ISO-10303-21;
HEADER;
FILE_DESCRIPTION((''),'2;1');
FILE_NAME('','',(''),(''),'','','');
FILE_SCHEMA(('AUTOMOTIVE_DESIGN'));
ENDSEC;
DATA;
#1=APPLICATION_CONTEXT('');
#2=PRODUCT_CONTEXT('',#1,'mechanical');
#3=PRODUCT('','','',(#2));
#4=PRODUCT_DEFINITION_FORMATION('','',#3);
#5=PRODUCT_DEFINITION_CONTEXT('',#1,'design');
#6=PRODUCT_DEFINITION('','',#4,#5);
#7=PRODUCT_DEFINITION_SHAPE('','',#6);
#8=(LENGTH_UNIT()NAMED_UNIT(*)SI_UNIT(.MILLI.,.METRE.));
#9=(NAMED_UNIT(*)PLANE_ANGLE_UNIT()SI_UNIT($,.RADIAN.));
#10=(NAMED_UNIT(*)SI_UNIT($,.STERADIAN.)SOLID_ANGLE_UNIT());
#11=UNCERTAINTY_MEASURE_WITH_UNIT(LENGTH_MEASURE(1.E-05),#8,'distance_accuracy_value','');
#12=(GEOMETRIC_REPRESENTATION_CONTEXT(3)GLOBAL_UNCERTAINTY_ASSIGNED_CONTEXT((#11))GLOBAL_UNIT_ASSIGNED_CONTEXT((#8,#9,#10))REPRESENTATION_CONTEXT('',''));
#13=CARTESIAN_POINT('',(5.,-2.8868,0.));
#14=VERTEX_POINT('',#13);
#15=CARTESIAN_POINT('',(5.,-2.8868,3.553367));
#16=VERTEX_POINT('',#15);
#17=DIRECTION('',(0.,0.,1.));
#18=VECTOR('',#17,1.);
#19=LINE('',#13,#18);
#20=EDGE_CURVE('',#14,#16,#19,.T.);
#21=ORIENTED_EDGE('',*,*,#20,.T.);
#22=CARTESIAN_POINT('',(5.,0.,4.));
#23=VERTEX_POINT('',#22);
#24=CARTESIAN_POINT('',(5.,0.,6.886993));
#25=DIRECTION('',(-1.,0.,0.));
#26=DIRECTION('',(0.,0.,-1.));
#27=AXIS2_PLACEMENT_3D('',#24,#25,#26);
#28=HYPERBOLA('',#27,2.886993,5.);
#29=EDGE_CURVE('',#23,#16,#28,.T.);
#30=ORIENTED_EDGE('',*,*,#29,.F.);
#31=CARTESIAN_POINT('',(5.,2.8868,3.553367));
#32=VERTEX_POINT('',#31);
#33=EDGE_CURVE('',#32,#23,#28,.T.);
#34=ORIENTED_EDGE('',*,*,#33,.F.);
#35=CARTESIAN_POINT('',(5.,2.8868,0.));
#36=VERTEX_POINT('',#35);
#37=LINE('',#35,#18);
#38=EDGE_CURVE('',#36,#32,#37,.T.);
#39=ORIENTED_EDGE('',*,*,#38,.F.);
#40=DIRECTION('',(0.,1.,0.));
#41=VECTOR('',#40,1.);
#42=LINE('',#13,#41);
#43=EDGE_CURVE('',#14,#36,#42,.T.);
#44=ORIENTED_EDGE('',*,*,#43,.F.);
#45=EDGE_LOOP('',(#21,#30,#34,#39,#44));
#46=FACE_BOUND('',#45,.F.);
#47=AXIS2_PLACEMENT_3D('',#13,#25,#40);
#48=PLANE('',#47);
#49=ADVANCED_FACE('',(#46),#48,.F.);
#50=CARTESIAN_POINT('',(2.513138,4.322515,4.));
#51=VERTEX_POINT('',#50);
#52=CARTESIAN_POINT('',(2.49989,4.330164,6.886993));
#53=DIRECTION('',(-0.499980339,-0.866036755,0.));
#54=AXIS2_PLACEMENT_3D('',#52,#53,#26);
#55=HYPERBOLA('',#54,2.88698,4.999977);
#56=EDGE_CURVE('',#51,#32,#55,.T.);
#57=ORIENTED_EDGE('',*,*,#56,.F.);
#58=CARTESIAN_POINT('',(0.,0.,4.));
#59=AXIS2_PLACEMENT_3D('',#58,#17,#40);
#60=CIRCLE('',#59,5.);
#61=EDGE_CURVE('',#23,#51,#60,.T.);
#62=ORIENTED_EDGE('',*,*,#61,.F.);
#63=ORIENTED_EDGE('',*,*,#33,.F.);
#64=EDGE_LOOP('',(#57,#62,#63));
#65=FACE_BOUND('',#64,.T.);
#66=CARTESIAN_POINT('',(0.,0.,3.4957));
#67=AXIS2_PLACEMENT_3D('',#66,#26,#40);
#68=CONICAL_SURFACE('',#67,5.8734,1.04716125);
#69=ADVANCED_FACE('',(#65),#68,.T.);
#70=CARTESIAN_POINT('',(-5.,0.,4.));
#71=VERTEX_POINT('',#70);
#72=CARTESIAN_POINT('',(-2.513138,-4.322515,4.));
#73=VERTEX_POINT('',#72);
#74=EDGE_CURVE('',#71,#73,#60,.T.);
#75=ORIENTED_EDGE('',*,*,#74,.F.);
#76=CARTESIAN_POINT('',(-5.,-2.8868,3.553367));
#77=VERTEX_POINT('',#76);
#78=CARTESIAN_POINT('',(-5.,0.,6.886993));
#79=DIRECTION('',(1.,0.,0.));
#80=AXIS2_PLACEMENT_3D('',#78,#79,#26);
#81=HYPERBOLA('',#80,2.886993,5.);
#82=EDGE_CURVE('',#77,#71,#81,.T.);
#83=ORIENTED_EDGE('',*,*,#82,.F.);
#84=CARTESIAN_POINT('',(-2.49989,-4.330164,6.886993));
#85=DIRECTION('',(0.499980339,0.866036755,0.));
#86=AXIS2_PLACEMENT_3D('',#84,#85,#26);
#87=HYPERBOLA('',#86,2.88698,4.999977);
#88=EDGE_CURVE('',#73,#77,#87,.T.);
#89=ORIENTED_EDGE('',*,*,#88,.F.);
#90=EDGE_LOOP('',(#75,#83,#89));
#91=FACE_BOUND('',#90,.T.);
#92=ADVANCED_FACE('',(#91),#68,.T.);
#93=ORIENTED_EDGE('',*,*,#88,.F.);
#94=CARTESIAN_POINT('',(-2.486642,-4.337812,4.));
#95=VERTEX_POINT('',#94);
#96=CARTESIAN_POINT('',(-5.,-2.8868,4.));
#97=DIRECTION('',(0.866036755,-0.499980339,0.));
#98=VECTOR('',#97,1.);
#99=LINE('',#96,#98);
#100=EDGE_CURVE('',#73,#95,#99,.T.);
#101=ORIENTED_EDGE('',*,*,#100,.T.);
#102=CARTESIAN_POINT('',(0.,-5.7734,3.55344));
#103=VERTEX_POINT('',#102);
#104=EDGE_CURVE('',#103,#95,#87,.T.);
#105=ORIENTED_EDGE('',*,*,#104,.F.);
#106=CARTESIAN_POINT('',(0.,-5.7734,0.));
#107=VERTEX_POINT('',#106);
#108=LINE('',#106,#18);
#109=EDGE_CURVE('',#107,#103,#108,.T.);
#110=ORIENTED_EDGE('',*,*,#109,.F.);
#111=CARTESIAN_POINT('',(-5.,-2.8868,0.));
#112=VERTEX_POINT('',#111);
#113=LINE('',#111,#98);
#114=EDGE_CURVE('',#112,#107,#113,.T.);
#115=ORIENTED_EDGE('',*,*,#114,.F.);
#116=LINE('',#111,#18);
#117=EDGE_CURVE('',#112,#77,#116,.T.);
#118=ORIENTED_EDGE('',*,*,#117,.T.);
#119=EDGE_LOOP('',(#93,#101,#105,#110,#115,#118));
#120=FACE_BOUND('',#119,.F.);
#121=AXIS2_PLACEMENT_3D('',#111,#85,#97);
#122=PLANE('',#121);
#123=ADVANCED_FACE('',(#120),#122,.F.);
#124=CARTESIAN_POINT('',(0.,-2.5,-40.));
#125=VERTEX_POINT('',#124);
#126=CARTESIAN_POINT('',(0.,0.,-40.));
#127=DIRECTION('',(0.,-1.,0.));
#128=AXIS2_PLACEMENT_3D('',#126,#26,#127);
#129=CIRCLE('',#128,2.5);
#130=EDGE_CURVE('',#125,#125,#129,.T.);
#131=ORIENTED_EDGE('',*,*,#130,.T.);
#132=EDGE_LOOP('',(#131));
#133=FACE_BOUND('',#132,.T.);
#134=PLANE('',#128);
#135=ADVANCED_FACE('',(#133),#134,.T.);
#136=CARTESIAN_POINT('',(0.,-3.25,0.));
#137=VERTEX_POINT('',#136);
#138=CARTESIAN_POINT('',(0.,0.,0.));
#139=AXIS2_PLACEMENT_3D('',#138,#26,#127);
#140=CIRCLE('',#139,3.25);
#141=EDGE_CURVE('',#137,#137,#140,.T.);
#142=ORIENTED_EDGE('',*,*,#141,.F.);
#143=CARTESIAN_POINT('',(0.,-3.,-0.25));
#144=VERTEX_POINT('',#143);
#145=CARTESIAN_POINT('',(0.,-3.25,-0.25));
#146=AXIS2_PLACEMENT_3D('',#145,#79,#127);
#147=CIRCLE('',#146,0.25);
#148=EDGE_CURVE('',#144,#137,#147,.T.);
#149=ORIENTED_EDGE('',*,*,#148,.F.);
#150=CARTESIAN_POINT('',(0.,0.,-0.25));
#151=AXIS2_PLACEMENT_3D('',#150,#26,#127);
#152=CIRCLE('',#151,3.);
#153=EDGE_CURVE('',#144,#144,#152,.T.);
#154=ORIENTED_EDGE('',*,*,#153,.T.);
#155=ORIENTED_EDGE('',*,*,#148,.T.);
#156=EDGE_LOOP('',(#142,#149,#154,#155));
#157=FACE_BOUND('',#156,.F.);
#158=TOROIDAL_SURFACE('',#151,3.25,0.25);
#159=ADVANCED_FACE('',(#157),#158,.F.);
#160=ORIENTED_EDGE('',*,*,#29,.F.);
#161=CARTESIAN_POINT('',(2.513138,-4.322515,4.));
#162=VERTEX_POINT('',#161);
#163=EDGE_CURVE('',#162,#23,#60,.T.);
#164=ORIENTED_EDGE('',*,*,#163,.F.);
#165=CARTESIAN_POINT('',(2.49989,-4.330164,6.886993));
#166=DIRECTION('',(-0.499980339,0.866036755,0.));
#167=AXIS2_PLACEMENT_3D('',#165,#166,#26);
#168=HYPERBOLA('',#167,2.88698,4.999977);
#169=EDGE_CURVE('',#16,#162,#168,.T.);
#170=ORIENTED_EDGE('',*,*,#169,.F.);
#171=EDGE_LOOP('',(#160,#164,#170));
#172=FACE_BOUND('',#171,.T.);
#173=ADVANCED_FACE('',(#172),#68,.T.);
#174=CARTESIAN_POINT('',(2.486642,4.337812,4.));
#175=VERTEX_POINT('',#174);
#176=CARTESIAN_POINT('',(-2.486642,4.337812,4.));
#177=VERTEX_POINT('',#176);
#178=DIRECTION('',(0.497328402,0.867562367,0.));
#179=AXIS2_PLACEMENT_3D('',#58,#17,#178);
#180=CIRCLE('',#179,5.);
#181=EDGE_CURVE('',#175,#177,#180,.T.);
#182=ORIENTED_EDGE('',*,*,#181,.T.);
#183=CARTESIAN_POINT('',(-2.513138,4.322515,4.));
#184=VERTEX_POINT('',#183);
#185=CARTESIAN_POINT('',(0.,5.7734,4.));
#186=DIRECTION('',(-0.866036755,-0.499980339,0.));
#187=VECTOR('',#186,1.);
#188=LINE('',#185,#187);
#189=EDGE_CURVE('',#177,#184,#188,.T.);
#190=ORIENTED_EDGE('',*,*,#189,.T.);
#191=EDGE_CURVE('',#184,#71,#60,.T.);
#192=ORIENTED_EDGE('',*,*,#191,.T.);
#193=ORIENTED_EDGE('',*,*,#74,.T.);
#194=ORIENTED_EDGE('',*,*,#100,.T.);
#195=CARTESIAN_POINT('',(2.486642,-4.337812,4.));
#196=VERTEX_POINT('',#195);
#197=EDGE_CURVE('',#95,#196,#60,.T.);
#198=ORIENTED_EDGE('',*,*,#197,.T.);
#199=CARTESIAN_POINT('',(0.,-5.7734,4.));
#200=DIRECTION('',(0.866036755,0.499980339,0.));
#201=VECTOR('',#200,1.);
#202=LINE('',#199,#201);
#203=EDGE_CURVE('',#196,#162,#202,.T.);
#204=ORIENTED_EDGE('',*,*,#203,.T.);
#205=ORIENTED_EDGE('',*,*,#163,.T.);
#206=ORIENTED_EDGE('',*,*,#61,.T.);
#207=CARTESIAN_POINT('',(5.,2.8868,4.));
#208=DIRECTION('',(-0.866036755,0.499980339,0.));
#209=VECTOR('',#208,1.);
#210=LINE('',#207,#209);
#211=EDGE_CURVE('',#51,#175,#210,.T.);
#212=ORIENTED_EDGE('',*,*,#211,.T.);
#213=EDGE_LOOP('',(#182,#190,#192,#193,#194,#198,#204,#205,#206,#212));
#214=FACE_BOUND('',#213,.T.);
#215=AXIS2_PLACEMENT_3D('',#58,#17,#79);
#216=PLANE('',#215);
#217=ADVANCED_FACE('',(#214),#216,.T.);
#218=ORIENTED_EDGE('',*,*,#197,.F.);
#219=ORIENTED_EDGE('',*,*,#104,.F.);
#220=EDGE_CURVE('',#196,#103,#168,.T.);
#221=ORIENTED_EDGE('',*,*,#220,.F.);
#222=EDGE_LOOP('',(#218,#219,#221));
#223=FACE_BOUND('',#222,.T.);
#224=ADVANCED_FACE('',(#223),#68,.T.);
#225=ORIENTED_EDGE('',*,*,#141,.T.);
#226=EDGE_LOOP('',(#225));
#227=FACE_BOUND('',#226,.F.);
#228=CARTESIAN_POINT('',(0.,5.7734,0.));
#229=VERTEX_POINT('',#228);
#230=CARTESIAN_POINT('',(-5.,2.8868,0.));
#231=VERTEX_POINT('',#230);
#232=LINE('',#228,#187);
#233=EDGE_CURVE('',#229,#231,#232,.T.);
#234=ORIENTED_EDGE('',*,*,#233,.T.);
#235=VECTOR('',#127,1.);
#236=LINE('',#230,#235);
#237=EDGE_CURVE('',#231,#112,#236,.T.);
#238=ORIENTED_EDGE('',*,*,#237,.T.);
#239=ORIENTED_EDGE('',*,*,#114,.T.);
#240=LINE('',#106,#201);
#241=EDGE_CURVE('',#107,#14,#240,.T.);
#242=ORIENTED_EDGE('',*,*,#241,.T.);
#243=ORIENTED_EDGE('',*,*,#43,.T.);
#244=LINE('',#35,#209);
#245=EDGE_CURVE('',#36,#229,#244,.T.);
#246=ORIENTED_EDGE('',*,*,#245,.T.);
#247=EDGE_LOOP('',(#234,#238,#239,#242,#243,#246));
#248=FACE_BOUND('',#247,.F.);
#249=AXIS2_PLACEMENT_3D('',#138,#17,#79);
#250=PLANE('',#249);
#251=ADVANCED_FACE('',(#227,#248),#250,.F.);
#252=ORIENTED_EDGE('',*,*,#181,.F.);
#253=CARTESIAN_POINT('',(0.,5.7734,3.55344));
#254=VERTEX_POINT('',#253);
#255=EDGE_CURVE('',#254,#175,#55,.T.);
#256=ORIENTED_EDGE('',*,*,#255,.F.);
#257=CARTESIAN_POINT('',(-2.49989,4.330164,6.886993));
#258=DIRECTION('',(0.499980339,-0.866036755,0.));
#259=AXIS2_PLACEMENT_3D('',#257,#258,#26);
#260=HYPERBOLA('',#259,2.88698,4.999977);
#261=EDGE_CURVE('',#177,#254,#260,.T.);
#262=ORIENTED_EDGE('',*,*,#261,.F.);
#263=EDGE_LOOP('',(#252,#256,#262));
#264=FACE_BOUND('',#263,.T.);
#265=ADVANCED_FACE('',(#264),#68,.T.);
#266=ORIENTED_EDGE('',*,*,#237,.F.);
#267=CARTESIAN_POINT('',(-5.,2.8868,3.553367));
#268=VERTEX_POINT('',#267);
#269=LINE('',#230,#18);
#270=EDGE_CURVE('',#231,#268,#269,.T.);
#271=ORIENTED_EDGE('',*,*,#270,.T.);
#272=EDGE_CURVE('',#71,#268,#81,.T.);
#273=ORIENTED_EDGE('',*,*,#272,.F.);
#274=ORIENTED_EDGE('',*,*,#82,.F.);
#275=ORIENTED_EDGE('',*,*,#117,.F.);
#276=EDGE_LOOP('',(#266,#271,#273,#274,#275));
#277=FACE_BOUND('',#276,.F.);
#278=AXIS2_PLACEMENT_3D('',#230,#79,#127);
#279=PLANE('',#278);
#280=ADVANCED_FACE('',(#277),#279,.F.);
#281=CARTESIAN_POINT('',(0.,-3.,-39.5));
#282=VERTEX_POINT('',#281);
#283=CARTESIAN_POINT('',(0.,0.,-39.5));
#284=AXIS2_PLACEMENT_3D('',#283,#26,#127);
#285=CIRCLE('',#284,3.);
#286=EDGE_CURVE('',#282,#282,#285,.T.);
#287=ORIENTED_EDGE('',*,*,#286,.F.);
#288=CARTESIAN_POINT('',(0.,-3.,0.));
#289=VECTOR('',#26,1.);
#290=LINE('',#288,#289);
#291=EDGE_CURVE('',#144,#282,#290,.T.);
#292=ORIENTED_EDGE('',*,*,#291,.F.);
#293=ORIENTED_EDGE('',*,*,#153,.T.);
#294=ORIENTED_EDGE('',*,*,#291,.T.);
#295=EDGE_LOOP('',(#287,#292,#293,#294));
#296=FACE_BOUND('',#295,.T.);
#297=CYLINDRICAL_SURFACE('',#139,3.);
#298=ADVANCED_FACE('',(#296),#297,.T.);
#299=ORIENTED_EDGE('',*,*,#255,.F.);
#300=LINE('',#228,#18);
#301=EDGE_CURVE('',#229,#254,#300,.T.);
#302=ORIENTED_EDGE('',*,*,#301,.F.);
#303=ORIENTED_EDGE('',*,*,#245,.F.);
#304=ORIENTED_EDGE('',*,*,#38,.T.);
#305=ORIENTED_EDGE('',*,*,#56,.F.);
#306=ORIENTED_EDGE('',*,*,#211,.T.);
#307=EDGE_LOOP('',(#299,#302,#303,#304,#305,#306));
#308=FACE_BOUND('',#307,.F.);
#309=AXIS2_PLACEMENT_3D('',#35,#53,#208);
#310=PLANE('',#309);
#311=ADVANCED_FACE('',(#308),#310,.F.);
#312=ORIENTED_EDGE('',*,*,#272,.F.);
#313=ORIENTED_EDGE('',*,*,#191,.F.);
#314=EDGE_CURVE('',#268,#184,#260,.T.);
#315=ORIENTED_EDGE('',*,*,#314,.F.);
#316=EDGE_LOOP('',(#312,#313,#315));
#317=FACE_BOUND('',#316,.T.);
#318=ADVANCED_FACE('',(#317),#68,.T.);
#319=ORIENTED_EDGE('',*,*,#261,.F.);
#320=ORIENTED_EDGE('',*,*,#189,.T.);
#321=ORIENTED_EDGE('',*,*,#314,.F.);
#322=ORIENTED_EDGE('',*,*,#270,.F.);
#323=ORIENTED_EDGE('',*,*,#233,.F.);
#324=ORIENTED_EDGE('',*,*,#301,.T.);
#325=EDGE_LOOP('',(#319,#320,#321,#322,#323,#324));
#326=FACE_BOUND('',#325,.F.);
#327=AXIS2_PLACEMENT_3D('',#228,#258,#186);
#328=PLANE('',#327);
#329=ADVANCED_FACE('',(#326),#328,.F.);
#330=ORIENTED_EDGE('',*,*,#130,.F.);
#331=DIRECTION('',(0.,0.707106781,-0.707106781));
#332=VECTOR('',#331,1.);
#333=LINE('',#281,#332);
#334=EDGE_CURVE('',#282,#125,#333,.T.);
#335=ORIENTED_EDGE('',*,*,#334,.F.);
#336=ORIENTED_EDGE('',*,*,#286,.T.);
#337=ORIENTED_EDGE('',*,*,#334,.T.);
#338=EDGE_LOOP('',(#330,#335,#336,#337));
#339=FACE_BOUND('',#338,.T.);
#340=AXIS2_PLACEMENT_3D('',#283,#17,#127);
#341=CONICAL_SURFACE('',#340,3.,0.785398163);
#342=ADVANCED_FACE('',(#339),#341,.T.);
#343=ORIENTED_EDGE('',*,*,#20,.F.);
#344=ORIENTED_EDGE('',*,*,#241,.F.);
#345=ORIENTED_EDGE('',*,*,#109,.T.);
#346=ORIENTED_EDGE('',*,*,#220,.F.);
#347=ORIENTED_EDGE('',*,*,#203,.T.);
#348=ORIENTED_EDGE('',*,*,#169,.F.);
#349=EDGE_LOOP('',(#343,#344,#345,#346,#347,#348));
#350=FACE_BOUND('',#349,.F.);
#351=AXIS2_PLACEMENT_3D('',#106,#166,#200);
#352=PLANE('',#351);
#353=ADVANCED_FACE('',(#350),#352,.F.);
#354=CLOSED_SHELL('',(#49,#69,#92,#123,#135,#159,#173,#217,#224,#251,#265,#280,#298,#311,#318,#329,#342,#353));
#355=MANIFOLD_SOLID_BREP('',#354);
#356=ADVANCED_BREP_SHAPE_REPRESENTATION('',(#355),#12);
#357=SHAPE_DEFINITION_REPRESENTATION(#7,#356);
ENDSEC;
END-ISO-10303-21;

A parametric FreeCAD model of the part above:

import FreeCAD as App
import Part
import Sketcher

V = App.Vector


def edges_at(feature, points):
    """Names of the edges that pass closest to the given points."""
    edges = feature.Shape.Edges
    near = lambda p: min(range(len(edges)), key=lambda i: edges[i].distToShape(Part.Vertex(*p))[0])
    return sorted({f"Edge{near(p) + 1}" for p in points})

doc = App.newDocument("Part")
body = doc.addObject("PartDesign::Body", "Body")

# Sketch on XY plane
sketch1 = body.newObject("Sketcher::SketchObject", "Sketch")
sketch1.AttachmentSupport = (doc.getObject("XY_Plane"), [""])
sketch1.MapMode = "FlatFace"
sketch1.addGeometry([
    Part.LineSegment(V(0, 6, 0), V(-5, 3, 0)),  # 0
    Part.LineSegment(V(-5, 3, 0), V(-5, -3, 0)),  # 1
    Part.LineSegment(V(-5, -3, 0), V(0, -6, 0)),  # 2
    Part.LineSegment(V(0, -6, 0), V(5, -3, 0)),  # 3
    Part.LineSegment(V(5, -3, 0), V(5, 3, 0)),  # 4
    Part.LineSegment(V(5, 3, 0), V(0, 6, 0)),  # 5
], False)
sketch1.addConstraint([
    Sketcher.Constraint("Coincident", 0, 2, 1, 1),
    Sketcher.Constraint("Coincident", 1, 2, 2, 1),
    Sketcher.Constraint("Coincident", 2, 2, 3, 1),
    Sketcher.Constraint("Coincident", 3, 2, 4, 1),
    Sketcher.Constraint("Coincident", 4, 2, 5, 1),
    Sketcher.Constraint("Coincident", 5, 2, 0, 1),
    Sketcher.Constraint("Vertical", 1),
    Sketcher.Constraint("Vertical", 4),
    Sketcher.Constraint("Symmetric", 0, 2, 3, 2, -1, 1),
    Sketcher.Constraint("Symmetric", 2, 2, 5, 2, -1, 1),
    Sketcher.Constraint("PointOnObject", 2, 2, -2),
    Sketcher.Constraint("Parallel", 2, 5),
    Sketcher.Constraint("Horizontal", 1, 2, 3, 2),
    Sketcher.Constraint("DistanceX", 1, 2, 3, 2, 10.0),
    Sketcher.Constraint("DistanceY", 1, 2, 1, 1, 5.7736),
    Sketcher.Constraint("Distance", 0, 5.7734),
])
pad1 = body.newObject("PartDesign::Pad", "Pad")
pad1.Profile = sketch1
pad1.Length = 4

# Sketch on YZ plane
sketch2 = body.newObject("Sketcher::SketchObject", "Sketch001")
sketch2.AttachmentSupport = (doc.getObject("YZ_Plane"), [""])
sketch2.MapMode = "FlatFace"
sketch2.addGeometry([
    Part.LineSegment(V(5, 4, 0), V(5.9, 3.5, 0)),
    Part.LineSegment(V(5.9, 3.5, 0), V(5.9, 4, 0)),
    Part.LineSegment(V(5.9, 4, 0), V(5, 4, 0)),
], False)
sketch2.addConstraint([
    Sketcher.Constraint("Coincident", 0, 2, 1, 1),
    Sketcher.Constraint("Coincident", 1, 2, 2, 1),
    Sketcher.Constraint("Coincident", 2, 2, 0, 1),
    Sketcher.Constraint("Vertical", 1),
    Sketcher.Constraint("Horizontal", 2),
    Sketcher.Constraint("DistanceX", -1, 1, 2, 2, 5.0),
    Sketcher.Constraint("DistanceY", -1, 1, 1, 2, 4.0),
    Sketcher.Constraint("DistanceX", 2, 2, 2, 1, 0.8734),
    Sketcher.Constraint("DistanceY", 1, 1, 1, 2, 0.5043),
])
groove = body.newObject("PartDesign::Groove", "Groove")
groove.Profile = sketch2
groove.ReferenceAxis = (sketch2, ["V_Axis"])
groove.Angle = 360

# Sketch on YZ plane
sketch3 = body.newObject("Sketcher::SketchObject", "Sketch002")
sketch3.AttachmentSupport = (doc.getObject("YZ_Plane"), [""])
sketch3.MapMode = "FlatFace"
sketch3.addGeometry([
    Part.LineSegment(V(-3, -40, 0), V(0, -40, 0)),
    Part.LineSegment(V(0, -40, 0), V(0, 0, 0)),
    Part.LineSegment(V(0, 0, 0), V(-3, 0, 0)),
    Part.LineSegment(V(-3, 0, 0), V(-3, -40, 0)),
], False)
sketch3.addConstraint([
    Sketcher.Constraint("Coincident", 0, 2, 1, 1),
    Sketcher.Constraint("Coincident", 1, 2, 2, 1),
    Sketcher.Constraint("Coincident", 2, 2, 3, 1),
    Sketcher.Constraint("Coincident", 3, 2, 0, 1),
    Sketcher.Constraint("Horizontal", 0),
    Sketcher.Constraint("Vertical", 1),
    Sketcher.Constraint("Horizontal", 2),
    Sketcher.Constraint("Vertical", 3),
    Sketcher.Constraint("Coincident", 1, 2, -1, 1),
    Sketcher.Constraint("DistanceX", 0, 1, 0, 2, 3.0),
    Sketcher.Constraint("DistanceY", 1, 1, 1, 2, 40.0),
])
revolution = body.newObject("PartDesign::Revolution", "Revolution")
revolution.Profile = sketch3
revolution.ReferenceAxis = (sketch3, ["V_Axis"])
revolution.Angle = 360
doc.recompute()

chamfer = body.newObject("PartDesign::Chamfer", "Chamfer")
chamfer.Base = (revolution, edges_at(revolution, [(0, 3, -40)]))
chamfer.Size = 0.5
doc.recompute()

fillet = body.newObject("PartDesign::Fillet", "Fillet")
fillet.Base = (chamfer, edges_at(chamfer, [(0, 3, 0)]))
fillet.Radius = 0.25

doc.recompute()
